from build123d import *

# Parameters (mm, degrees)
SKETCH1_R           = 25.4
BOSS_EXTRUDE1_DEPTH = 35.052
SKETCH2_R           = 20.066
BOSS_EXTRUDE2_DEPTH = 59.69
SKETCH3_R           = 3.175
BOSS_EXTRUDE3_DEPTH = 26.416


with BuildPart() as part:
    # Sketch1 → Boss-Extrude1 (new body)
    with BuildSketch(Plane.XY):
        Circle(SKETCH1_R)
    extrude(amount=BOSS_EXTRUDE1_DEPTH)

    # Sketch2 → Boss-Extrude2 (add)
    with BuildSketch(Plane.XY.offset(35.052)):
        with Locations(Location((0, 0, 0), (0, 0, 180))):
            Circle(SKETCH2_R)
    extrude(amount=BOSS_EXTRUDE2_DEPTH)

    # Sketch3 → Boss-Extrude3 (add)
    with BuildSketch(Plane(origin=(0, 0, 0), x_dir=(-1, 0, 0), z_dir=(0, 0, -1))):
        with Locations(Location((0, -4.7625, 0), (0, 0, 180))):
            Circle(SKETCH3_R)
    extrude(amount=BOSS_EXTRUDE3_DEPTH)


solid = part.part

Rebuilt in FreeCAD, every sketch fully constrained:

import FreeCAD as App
import Part
import Sketcher

V = App.Vector
Q = App.Units.Quantity

doc = App.newDocument("Part")
body = doc.addObject("PartDesign::Body", "Body")

# Sketch on XY plane
sketch1 = doc.addObject("Sketcher::SketchObject", "Sketch")
body.addObject(sketch1)
sketch1.AttachmentSupport = (doc.XY_Plane, [""])
sketch1.MapMode = "FlatFace"
sketch1.addGeometry(Part.Circle(V(0, 0, 0), V(0, 0, 1), 25), False)
sketch1.addConstraint(Sketcher.Constraint("Coincident", 0, 3, -1, 1))
sketch1.addConstraint(Sketcher.Constraint("Diameter", 0, Q("2 in")))
pad1 = doc.addObject("PartDesign::Pad", "Pad")
body.addObject(pad1)
pad1.Profile = sketch1
pad1.Length = Q("1.38 in")

# Sketch on XY plane
sketch2 = doc.addObject("Sketcher::SketchObject", "Sketch001")
body.addObject(sketch2)
sketch2.AttachmentSupport = (doc.XY_Plane, [""])
sketch2.MapMode = "FlatFace"
sketch2.AttachmentOffset = App.Placement(V(0, 0, 1.38 * 25.4), App.Rotation())
sketch2.addGeometry(Part.Circle(V(0, 0, 0), V(0, 0, 1), 20), False)
sketch2.addConstraint(Sketcher.Constraint("Coincident", 0, 3, -1, 1))
sketch2.addConstraint(Sketcher.Constraint("Diameter", 0, Q("1.58 in")))
pad2 = doc.addObject("PartDesign::Pad", "Pad001")
body.addObject(pad2)
pad2.Profile = sketch2
pad2.Length = Q("2.35 in")

# Sketch on XY plane
sketch3 = doc.addObject("Sketcher::SketchObject", "Sketch002")
body.addObject(sketch3)
sketch3.AttachmentSupport = (doc.XY_Plane, [""])
sketch3.MapMode = "FlatFace"
sketch3.addGeometry(Part.Circle(V(0, -4.8, 0), V(0, 0, 1), 3.2), False)
sketch3.addConstraint(Sketcher.Constraint("PointOnObject", 0, 3, -2))
sketch3.addConstraint(Sketcher.Constraint("Diameter", 0, Q("0.25 in")))
sketch3.addConstraint(Sketcher.Constraint("DistanceY", 0, 3, -1, 1, Q("0.1875 in")))
pad3 = doc.addObject("PartDesign::Pad", "Pad002")
body.addObject(pad3)
pad3.Profile = sketch3
pad3.Length = Q("1.04 in")
pad3.Reversed = True

doc.recompute()
